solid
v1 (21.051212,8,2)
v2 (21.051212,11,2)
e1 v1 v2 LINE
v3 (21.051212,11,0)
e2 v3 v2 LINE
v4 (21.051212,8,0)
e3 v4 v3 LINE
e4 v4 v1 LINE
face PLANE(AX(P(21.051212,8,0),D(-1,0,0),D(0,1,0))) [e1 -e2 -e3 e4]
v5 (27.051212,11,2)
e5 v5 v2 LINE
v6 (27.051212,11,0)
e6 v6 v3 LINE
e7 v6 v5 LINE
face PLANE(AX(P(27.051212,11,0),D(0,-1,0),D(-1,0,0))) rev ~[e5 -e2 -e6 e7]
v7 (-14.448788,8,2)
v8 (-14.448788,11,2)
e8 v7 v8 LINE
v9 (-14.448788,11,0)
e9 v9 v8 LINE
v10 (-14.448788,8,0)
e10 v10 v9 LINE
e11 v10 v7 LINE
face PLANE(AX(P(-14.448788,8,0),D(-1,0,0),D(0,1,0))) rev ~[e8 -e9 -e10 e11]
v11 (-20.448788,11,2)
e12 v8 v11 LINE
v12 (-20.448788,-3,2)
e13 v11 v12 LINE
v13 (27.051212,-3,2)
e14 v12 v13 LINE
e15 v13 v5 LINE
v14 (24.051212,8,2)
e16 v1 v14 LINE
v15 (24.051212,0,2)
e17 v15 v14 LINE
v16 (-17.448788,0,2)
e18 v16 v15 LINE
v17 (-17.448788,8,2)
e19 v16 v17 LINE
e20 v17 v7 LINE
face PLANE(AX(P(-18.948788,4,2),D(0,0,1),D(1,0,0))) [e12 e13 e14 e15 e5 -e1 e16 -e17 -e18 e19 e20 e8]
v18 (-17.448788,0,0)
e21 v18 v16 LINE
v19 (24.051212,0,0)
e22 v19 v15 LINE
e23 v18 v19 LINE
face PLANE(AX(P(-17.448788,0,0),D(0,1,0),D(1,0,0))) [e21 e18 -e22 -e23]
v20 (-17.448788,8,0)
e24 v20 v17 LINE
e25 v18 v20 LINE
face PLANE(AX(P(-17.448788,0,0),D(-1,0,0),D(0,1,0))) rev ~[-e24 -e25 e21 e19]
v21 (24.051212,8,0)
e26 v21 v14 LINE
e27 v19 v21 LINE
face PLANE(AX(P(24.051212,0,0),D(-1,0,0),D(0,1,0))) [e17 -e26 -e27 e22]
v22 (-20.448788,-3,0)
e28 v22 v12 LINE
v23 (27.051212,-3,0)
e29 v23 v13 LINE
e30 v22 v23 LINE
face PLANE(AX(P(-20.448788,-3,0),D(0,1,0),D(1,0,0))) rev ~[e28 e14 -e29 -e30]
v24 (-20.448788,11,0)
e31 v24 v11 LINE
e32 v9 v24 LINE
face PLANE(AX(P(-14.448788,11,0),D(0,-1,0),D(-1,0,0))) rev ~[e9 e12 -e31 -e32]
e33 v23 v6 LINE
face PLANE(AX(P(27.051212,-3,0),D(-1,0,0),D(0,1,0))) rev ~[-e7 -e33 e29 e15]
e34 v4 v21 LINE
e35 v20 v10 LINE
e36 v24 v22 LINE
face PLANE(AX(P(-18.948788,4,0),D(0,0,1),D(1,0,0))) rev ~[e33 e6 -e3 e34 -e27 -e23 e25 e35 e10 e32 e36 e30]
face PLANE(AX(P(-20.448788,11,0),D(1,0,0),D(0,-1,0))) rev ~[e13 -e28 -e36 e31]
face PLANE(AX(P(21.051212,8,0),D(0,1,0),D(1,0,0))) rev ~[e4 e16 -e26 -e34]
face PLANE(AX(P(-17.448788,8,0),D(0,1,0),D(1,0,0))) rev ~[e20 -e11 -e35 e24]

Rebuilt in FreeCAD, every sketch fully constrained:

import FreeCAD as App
import Part
import Sketcher

V = App.Vector

doc = App.newDocument("Part")
body = doc.addObject("PartDesign::Body", "Body")

sketch1 = body.newObject("Sketcher::SketchObject", "Sketch")
sketch1.AttachmentSupport = (doc.getObject("XY_Plane"), [""])
sketch1.MapMode = "FlatFace"
sketch1.addGeometry([
    Part.LineSegment(V(-20.4, -3, 0), V(27.1, -3, 0)),
    Part.LineSegment(V(27.1, -3, 0), V(27.1, 11, 0)),
    Part.LineSegment(V(27.1, 11, 0), V(21.1, 11, 0)),
    Part.LineSegment(V(21.1, 11, 0), V(21.1, 8, 0)),
    Part.LineSegment(V(21.1, 8, 0), V(24.1, 8, 0)),
    Part.LineSegment(V(24.1, 8, 0), V(24.1, 0, 0)),
    Part.LineSegment(V(24.1, 0, 0), V(-17.4, 0, 0)),
    Part.LineSegment(V(-17.4, 0, 0), V(-17.4, 8, 0)),
    Part.LineSegment(V(-17.4, 8, 0), V(-14.4, 8, 0)),
    Part.LineSegment(V(-14.4, 8, 0), V(-14.4, 11, 0)),
    Part.LineSegment(V(-14.4, 11, 0), V(-20.4, 11, 0)),
    Part.LineSegment(V(-20.4, 11, 0), V(-20.4, -3, 0)),
], False)
sketch1.addConstraint([
    Sketcher.Constraint("Coincident", 0, 2, 1, 1),
    Sketcher.Constraint("Coincident", 1, 2, 2, 1),
    Sketcher.Constraint("Coincident", 2, 2, 3, 1),
    Sketcher.Constraint("Coincident", 3, 2, 4, 1),
    Sketcher.Constraint("Coincident", 4, 2, 5, 1),
    Sketcher.Constraint("Coincident", 5, 2, 6, 1),
    Sketcher.Constraint("Coincident", 6, 2, 7, 1),
    Sketcher.Constraint("Coincident", 7, 2, 8, 1),
    Sketcher.Constraint("Coincident", 8, 2, 9, 1),
    Sketcher.Constraint("Coincident", 9, 2, 10, 1),
    Sketcher.Constraint("Coincident", 10, 2, 11, 1),
    Sketcher.Constraint("Coincident", 11, 2, 0, 1),
    Sketcher.Constraint("Horizontal", 0),
    Sketcher.Constraint("Vertical", 1),
    Sketcher.Constraint("Horizontal", 2),
    Sketcher.Constraint("Vertical", 3),
    Sketcher.Constraint("Horizontal", 4),
    Sketcher.Constraint("Vertical", 5),
    Sketcher.Constraint("Horizontal", 6),
    Sketcher.Constraint("Vertical", 7),
    Sketcher.Constraint("Horizontal", 8),
    Sketcher.Constraint("Vertical", 9),
    Sketcher.Constraint("Horizontal", 10),
    Sketcher.Constraint("Vertical", 11),
    Sketcher.Constraint("PointOnObject", 5, 2, -1),
    Sketcher.Constraint("Horizontal", 4, 2, 7, 2),
    Sketcher.Constraint("Horizontal", 2, 2, 9, 2),
    Sketcher.Constraint("Equal", 4, 8),
    Sketcher.Constraint("Equal", 2, 10),
    Sketcher.Constraint("Equal", 8, 3),
    Sketcher.Constraint("DistanceX", 2, 2, 2, 1, 6.0),
    Sketcher.Constraint("DistanceX", 4, 1, 4, 2, 3.0),
    Sketcher.Constraint("DistanceY", 1, 1, 1, 2, 14.0),
    Sketcher.Constraint("DistanceY", 5, 2, 5, 1, 8.0),
    Sketcher.Constraint("DistanceX", 0, 1, 0, 2, 47.5),
    Sketcher.Constraint("DistanceX", -1, 1, 0, 2, 27.051212),
])
pad1 = body.newObject("PartDesign::Pad", "Pad")
pad1.Profile = sketch1
pad1.Length = 2

doc.recompute()
